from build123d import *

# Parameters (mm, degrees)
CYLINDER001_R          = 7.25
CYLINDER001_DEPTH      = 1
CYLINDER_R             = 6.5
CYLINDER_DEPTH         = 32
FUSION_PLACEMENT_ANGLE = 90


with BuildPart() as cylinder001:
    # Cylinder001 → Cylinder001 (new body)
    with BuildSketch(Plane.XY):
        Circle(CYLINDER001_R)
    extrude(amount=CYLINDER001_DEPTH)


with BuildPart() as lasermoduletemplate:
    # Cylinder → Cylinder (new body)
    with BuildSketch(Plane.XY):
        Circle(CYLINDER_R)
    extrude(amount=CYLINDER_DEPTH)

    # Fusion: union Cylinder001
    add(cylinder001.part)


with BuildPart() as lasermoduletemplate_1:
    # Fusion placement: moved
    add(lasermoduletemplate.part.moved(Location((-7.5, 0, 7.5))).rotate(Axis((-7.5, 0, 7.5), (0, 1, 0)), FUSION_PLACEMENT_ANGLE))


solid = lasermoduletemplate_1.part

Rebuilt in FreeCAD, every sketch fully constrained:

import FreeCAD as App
import Part
import Sketcher

doc = App.newDocument("Part")
body = doc.addObject("PartDesign::Body", "Body")

# Sketch on XY plane
sketch1 = body.newObject("Sketcher::SketchObject", "Sketch")
sketch1.AttachmentSupport = (doc.getObject("XY_Plane"), [""])
sketch1.MapMode = "FlatFace"
sketch1.addGeometry(Part.Circle(App.Vector(0, 0, 0), App.Vector(0, 0, 1), 7), False)
sketch1.addConstraint([
    Sketcher.Constraint("Coincident", 0, 3, -1, 1),
    Sketcher.Constraint("Diameter", 0, 14.5),
])
pad1 = body.newObject("PartDesign::Pad", "Pad")
pad1.Profile = sketch1
pad1.Length = 1
body2 = doc.addObject("PartDesign::Body", "Body001")

# Sketch on XY plane
sketch2 = body2.newObject("Sketcher::SketchObject", "Sketch001")
sketch2.AttachmentSupport = (doc.getObject("XY_Plane001"), [""])
sketch2.MapMode = "FlatFace"
sketch2.addGeometry(Part.Circle(App.Vector(0, 0, 0), App.Vector(0, 0, 1), 6), False)
sketch2.addConstraint([
    Sketcher.Constraint("Coincident", 0, 3, -1, 1),
    Sketcher.Constraint("Diameter", 0, 13.0),
])
pad2 = body2.newObject("PartDesign::Pad", "Pad001")
pad2.Profile = sketch2
pad2.Length = 32
doc.recompute()

boolean = body2.newObject("PartDesign::Boolean", "Boolean")
boolean.Type = "Fuse"
boolean.addObjects([body])
body3 = doc.addObject("PartDesign::Body", "Body002")
doc.recompute()

body2.Placement = App.Placement(App.Vector(-7.5, 0, 7.5), App.Rotation(App.Vector(0, 1, 0), 90))
boolean2 = body3.newObject("PartDesign::Boolean", "Boolean001")
boolean2.Type = "Fuse"
boolean2.addObjects([body2])

doc.recompute()
